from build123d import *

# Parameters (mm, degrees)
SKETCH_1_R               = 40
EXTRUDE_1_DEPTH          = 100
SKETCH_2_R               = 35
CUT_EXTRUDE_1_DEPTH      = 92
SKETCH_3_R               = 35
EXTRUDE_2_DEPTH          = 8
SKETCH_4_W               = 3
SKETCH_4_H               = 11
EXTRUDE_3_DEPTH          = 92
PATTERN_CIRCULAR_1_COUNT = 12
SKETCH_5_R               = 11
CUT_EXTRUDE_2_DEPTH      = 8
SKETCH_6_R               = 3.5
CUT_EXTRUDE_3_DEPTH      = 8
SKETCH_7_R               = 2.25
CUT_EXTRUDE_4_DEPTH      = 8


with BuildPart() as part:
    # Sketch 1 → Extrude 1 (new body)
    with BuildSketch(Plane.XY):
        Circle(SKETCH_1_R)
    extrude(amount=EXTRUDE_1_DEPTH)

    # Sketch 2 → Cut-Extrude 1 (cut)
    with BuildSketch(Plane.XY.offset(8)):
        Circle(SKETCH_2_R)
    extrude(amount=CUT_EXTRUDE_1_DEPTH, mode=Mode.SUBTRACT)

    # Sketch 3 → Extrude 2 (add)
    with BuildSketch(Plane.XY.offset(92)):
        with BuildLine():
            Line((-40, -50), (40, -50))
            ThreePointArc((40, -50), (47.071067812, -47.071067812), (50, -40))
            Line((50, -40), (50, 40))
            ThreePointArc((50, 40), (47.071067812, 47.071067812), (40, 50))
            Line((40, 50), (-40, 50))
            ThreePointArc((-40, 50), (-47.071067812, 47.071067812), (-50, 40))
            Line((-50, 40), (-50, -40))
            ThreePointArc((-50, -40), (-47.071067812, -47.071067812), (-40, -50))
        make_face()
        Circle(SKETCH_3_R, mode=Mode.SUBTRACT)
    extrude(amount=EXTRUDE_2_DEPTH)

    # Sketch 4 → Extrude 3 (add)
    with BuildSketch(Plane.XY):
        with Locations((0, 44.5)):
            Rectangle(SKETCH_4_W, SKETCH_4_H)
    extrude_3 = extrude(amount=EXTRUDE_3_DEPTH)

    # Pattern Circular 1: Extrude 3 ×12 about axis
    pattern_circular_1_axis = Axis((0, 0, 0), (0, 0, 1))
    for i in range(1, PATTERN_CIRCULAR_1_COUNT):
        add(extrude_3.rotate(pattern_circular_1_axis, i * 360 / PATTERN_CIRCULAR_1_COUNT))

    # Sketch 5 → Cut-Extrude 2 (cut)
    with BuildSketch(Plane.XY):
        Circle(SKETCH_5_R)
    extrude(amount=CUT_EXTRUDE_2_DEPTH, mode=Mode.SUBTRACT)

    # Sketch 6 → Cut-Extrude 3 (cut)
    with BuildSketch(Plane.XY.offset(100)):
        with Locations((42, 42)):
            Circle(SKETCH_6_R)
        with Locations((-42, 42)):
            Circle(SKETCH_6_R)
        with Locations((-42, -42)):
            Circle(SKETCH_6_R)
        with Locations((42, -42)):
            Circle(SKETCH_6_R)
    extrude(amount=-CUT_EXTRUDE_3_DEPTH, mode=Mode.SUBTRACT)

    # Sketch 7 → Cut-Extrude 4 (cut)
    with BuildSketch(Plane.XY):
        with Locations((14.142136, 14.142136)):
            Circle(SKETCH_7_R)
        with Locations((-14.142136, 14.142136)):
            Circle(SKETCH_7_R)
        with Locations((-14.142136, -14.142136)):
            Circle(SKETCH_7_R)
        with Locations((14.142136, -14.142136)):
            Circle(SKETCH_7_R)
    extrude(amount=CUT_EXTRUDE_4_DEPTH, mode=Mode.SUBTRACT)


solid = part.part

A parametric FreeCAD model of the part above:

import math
import FreeCAD as App
import Part
import Sketcher

V = App.Vector


def add_polygon(sketch, points):
    """Adds a closed chain of lines whose ends are joined by coincident constraints."""
    first, n = sketch.GeometryCount, len(points)
    for a, b in zip(points, points[1:] + points[:1]):
        sketch.addGeometry(Part.LineSegment(App.Vector(*a, 0), App.Vector(*b, 0)), False)
    for i in range(n):
        sketch.addConstraint(Sketcher.Constraint("Coincident", first + i, 2, first + (i + 1) % n, 1))

doc = App.newDocument("Part")
body = doc.addObject("PartDesign::Body", "Body")

# Sketch on XY plane
sketch1 = body.newObject("Sketcher::SketchObject", "Sketch")
sketch1.AttachmentSupport = (doc.getObject("XY_Plane"), [""])
sketch1.MapMode = "FlatFace"
sketch1.addGeometry(Part.Circle(V(0, 0, 0), V(0, 0, 1), 40), False)
sketch1.addConstraint([
    Sketcher.Constraint("Coincident", 0, 3, -1, 1),
    Sketcher.Constraint("Diameter", 0, 80.0),
])
pad1 = body.newObject("PartDesign::Pad", "Pad")
pad1.Profile = sketch1
pad1.Length = 100

# Sketch on XY plane
sketch2 = body.newObject("Sketcher::SketchObject", "Sketch001")
sketch2.AttachmentSupport = (doc.getObject("XY_Plane"), [""])
sketch2.MapMode = "FlatFace"
sketch2.AttachmentOffset = App.Placement(V(0, 0, 8), App.Rotation())
sketch2.addGeometry(Part.Circle(V(0, 0, 0), V(0, 0, 1), 35), False)
sketch2.addConstraint([
    Sketcher.Constraint("Coincident", 0, 3, -1, 1),
    Sketcher.Constraint("Diameter", 0, 70.0),
])
pocket1 = body.newObject("PartDesign::Pocket", "Pocket")
pocket1.Profile = sketch2
pocket1.Length = 92
pocket1.Reversed = True

# Sketch on XY plane
sketch3 = body.newObject("Sketcher::SketchObject", "Sketch002")
sketch3.AttachmentSupport = (doc.getObject("XY_Plane"), [""])
sketch3.MapMode = "FlatFace"
sketch3.AttachmentOffset = App.Placement(V(0, 0, 92), App.Rotation())
sketch3.addGeometry([
    Part.LineSegment(V(-40, -50, 0), V(40, -50, 0)),  # 0
    Part.ArcOfCircle(Part.Circle(V(40, -40, 0), V(0, 0, 1), 10), math.radians(-90), math.radians(0)),  # 1
    Part.LineSegment(V(50, -40, 0), V(50, 40, 0)),  # 2
    Part.ArcOfCircle(Part.Circle(V(40, 40, 0), V(0, 0, 1), 10), math.radians(0), math.radians(90)),  # 3
    Part.LineSegment(V(40, 50, 0), V(-40, 50, 0)),  # 4
    Part.ArcOfCircle(Part.Circle(V(-40, 40, 0), V(0, 0, 1), 10), math.radians(90), math.radians(180)),  # 5
    Part.LineSegment(V(-50, 40, 0), V(-50, -40, 0)),  # 6
    Part.ArcOfCircle(Part.Circle(V(-40, -40, 0), V(0, 0, 1), 10), math.radians(180), math.radians(270)),  # 7
    Part.Circle(V(0, 0, 0), V(0, 0, 1), 35),  # 8
], False)
sketch3.addConstraint([
    Sketcher.Constraint("Tangent", 0, 2, 1, 1),
    Sketcher.Constraint("Tangent", 1, 2, 2, 1),
    Sketcher.Constraint("Tangent", 2, 2, 3, 1),
    Sketcher.Constraint("Tangent", 3, 2, 4, 1),
    Sketcher.Constraint("Tangent", 4, 2, 5, 1),
    Sketcher.Constraint("Tangent", 5, 2, 6, 1),
    Sketcher.Constraint("Tangent", 6, 2, 7, 1),
    Sketcher.Constraint("Tangent", 7, 2, 0, 1),
    Sketcher.Constraint("Horizontal", 0),
    Sketcher.Constraint("Vertical", 2),
    Sketcher.Constraint("Horizontal", 4),
    Sketcher.Constraint("Vertical", 6),
    Sketcher.Constraint("Coincident", 8, 3, -1, 1),
    Sketcher.Constraint("Equal", 1, 3),
    Sketcher.Constraint("Equal", 3, 5),
    Sketcher.Constraint("Equal", 5, 7),
    Sketcher.Constraint("Symmetric", 1, 3, 5, 3, -1, 1),
    Sketcher.Constraint("Equal", 4, 2),
    Sketcher.Constraint("Diameter", 8, 70.0),
    Sketcher.Constraint("Radius", 1, 10.0),
    Sketcher.Constraint("DistanceX", 0, 1, 0, 2, 80.0),
])
pad2 = body.newObject("PartDesign::Pad", "Pad001")
pad2.Profile = sketch3
pad2.Length = 8

# Sketch on XY plane
sketch4 = body.newObject("Sketcher::SketchObject", "Sketch003")
sketch4.AttachmentSupport = (doc.getObject("XY_Plane"), [""])
sketch4.MapMode = "FlatFace"
add_polygon(sketch4, [(-1.5, 50), (-1.5, 39), (1.5, 39), (1.5, 50)])  # lines 0-3
sketch4.addConstraint([
    Sketcher.Constraint("Vertical", 0),
    Sketcher.Constraint("Horizontal", 1),
    Sketcher.Constraint("Vertical", 2),
    Sketcher.Constraint("Horizontal", 3),
    Sketcher.Constraint("DistanceX", 1, 1, 1, 2, 3.0),
    Sketcher.Constraint("DistanceY", 0, 2, 0, 1, 11.0),
    Sketcher.Constraint("DistanceY", -1, 1, 0, 2, 39.0),
    Sketcher.Constraint("DistanceX", 0, 2, -1, 1, 1.5),
])
pad3 = body.newObject("PartDesign::Pad", "Pad002")
pad3.Profile = sketch4
pad3.Length = 92
doc.recompute()

polarpattern = body.newObject("PartDesign::PolarPattern", "PolarPattern")
polarpattern.Originals = [pad3]
polarpattern.Axis = (doc.getObject("Z_Axis"), [""])
polarpattern.Angle = 360
polarpattern.Occurrences = 12
body.Tip = polarpattern

# Sketch on XY plane
sketch5 = body.newObject("Sketcher::SketchObject", "Sketch004")
sketch5.AttachmentSupport = (doc.getObject("XY_Plane"), [""])
sketch5.MapMode = "FlatFace"
sketch5.addGeometry(Part.Circle(V(0, 0, 0), V(0, 0, 1), 11), False)
sketch5.addConstraint([
    Sketcher.Constraint("Coincident", 0, 3, -1, 1),
    Sketcher.Constraint("Diameter", 0, 22.0),
])
pocket2 = body.newObject("PartDesign::Pocket", "Pocket001")
pocket2.Profile = sketch5
pocket2.Length = 8
pocket2.Reversed = True

# Sketch on XY plane
sketch6 = body.newObject("Sketcher::SketchObject", "Sketch005")
sketch6.AttachmentSupport = (doc.getObject("XY_Plane"), [""])
sketch6.MapMode = "FlatFace"
sketch6.AttachmentOffset = App.Placement(V(0, 0, 100), App.Rotation())
sketch6.addGeometry([
    Part.Circle(V(42, 42, 0), V(0, 0, 1), 3.5),
    Part.Circle(V(-42, 42, 0), V(0, 0, 1), 3.5),
    Part.Circle(V(-42, -42, 0), V(0, 0, 1), 3.5),
    Part.Circle(V(42, -42, 0), V(0, 0, 1), 3.5),
], False)
sketch6.addConstraint([
    Sketcher.Constraint("Equal", 0, 1),
    Sketcher.Constraint("Equal", 1, 2),
    Sketcher.Constraint("Equal", 2, 3),
    Sketcher.Constraint("Symmetric", 0, 3, 2, 3, -1, 1),
    Sketcher.Constraint("Symmetric", 1, 3, 3, 3, -1, 1),
    Sketcher.Constraint("Symmetric", 0, 3, 1, 3, -2),
    Sketcher.Constraint("Diameter", 0, 7.0),
    Sketcher.Constraint("DistanceX", -1, 1, 0, 3, 42.0),
    Sketcher.Constraint("DistanceY", -1, 1, 0, 3, 42.0),
])
pocket3 = body.newObject("PartDesign::Pocket", "Pocket002")
pocket3.Profile = sketch6
pocket3.Length = 8

# Sketch on XY plane
sketch7 = body.newObject("Sketcher::SketchObject", "Sketch006")
sketch7.AttachmentSupport = (doc.getObject("XY_Plane"), [""])
sketch7.MapMode = "FlatFace"
sketch7.addGeometry([
    Part.Circle(V(14.142136, 14.142136, 0), V(0, 0, 1), 2.25),
    Part.Circle(V(-14.142136, 14.142136, 0), V(0, 0, 1), 2.25),
    Part.Circle(V(-14.142136, -14.142136, 0), V(0, 0, 1), 2.25),
    Part.Circle(V(14.142136, -14.142136, 0), V(0, 0, 1), 2.25),
], False)
sketch7.addConstraint([
    Sketcher.Constraint("Equal", 0, 1),
    Sketcher.Constraint("Equal", 1, 2),
    Sketcher.Constraint("Equal", 2, 3),
    Sketcher.Constraint("Symmetric", 0, 3, 2, 3, -1, 1),
    Sketcher.Constraint("Symmetric", 1, 3, 3, 3, -1, 1),
    Sketcher.Constraint("Symmetric", 0, 3, 1, 3, -2),
    Sketcher.Constraint("Diameter", 0, 4.5),
    Sketcher.Constraint("DistanceX", -1, 1, 0, 3, 14.142136),
    Sketcher.Constraint("DistanceY", -1, 1, 0, 3, 14.142136),
])
pocket4 = body.newObject("PartDesign::Pocket", "Pocket003")
pocket4.Profile = sketch7
pocket4.Length = 8
pocket4.Reversed = True

doc.recompute()
